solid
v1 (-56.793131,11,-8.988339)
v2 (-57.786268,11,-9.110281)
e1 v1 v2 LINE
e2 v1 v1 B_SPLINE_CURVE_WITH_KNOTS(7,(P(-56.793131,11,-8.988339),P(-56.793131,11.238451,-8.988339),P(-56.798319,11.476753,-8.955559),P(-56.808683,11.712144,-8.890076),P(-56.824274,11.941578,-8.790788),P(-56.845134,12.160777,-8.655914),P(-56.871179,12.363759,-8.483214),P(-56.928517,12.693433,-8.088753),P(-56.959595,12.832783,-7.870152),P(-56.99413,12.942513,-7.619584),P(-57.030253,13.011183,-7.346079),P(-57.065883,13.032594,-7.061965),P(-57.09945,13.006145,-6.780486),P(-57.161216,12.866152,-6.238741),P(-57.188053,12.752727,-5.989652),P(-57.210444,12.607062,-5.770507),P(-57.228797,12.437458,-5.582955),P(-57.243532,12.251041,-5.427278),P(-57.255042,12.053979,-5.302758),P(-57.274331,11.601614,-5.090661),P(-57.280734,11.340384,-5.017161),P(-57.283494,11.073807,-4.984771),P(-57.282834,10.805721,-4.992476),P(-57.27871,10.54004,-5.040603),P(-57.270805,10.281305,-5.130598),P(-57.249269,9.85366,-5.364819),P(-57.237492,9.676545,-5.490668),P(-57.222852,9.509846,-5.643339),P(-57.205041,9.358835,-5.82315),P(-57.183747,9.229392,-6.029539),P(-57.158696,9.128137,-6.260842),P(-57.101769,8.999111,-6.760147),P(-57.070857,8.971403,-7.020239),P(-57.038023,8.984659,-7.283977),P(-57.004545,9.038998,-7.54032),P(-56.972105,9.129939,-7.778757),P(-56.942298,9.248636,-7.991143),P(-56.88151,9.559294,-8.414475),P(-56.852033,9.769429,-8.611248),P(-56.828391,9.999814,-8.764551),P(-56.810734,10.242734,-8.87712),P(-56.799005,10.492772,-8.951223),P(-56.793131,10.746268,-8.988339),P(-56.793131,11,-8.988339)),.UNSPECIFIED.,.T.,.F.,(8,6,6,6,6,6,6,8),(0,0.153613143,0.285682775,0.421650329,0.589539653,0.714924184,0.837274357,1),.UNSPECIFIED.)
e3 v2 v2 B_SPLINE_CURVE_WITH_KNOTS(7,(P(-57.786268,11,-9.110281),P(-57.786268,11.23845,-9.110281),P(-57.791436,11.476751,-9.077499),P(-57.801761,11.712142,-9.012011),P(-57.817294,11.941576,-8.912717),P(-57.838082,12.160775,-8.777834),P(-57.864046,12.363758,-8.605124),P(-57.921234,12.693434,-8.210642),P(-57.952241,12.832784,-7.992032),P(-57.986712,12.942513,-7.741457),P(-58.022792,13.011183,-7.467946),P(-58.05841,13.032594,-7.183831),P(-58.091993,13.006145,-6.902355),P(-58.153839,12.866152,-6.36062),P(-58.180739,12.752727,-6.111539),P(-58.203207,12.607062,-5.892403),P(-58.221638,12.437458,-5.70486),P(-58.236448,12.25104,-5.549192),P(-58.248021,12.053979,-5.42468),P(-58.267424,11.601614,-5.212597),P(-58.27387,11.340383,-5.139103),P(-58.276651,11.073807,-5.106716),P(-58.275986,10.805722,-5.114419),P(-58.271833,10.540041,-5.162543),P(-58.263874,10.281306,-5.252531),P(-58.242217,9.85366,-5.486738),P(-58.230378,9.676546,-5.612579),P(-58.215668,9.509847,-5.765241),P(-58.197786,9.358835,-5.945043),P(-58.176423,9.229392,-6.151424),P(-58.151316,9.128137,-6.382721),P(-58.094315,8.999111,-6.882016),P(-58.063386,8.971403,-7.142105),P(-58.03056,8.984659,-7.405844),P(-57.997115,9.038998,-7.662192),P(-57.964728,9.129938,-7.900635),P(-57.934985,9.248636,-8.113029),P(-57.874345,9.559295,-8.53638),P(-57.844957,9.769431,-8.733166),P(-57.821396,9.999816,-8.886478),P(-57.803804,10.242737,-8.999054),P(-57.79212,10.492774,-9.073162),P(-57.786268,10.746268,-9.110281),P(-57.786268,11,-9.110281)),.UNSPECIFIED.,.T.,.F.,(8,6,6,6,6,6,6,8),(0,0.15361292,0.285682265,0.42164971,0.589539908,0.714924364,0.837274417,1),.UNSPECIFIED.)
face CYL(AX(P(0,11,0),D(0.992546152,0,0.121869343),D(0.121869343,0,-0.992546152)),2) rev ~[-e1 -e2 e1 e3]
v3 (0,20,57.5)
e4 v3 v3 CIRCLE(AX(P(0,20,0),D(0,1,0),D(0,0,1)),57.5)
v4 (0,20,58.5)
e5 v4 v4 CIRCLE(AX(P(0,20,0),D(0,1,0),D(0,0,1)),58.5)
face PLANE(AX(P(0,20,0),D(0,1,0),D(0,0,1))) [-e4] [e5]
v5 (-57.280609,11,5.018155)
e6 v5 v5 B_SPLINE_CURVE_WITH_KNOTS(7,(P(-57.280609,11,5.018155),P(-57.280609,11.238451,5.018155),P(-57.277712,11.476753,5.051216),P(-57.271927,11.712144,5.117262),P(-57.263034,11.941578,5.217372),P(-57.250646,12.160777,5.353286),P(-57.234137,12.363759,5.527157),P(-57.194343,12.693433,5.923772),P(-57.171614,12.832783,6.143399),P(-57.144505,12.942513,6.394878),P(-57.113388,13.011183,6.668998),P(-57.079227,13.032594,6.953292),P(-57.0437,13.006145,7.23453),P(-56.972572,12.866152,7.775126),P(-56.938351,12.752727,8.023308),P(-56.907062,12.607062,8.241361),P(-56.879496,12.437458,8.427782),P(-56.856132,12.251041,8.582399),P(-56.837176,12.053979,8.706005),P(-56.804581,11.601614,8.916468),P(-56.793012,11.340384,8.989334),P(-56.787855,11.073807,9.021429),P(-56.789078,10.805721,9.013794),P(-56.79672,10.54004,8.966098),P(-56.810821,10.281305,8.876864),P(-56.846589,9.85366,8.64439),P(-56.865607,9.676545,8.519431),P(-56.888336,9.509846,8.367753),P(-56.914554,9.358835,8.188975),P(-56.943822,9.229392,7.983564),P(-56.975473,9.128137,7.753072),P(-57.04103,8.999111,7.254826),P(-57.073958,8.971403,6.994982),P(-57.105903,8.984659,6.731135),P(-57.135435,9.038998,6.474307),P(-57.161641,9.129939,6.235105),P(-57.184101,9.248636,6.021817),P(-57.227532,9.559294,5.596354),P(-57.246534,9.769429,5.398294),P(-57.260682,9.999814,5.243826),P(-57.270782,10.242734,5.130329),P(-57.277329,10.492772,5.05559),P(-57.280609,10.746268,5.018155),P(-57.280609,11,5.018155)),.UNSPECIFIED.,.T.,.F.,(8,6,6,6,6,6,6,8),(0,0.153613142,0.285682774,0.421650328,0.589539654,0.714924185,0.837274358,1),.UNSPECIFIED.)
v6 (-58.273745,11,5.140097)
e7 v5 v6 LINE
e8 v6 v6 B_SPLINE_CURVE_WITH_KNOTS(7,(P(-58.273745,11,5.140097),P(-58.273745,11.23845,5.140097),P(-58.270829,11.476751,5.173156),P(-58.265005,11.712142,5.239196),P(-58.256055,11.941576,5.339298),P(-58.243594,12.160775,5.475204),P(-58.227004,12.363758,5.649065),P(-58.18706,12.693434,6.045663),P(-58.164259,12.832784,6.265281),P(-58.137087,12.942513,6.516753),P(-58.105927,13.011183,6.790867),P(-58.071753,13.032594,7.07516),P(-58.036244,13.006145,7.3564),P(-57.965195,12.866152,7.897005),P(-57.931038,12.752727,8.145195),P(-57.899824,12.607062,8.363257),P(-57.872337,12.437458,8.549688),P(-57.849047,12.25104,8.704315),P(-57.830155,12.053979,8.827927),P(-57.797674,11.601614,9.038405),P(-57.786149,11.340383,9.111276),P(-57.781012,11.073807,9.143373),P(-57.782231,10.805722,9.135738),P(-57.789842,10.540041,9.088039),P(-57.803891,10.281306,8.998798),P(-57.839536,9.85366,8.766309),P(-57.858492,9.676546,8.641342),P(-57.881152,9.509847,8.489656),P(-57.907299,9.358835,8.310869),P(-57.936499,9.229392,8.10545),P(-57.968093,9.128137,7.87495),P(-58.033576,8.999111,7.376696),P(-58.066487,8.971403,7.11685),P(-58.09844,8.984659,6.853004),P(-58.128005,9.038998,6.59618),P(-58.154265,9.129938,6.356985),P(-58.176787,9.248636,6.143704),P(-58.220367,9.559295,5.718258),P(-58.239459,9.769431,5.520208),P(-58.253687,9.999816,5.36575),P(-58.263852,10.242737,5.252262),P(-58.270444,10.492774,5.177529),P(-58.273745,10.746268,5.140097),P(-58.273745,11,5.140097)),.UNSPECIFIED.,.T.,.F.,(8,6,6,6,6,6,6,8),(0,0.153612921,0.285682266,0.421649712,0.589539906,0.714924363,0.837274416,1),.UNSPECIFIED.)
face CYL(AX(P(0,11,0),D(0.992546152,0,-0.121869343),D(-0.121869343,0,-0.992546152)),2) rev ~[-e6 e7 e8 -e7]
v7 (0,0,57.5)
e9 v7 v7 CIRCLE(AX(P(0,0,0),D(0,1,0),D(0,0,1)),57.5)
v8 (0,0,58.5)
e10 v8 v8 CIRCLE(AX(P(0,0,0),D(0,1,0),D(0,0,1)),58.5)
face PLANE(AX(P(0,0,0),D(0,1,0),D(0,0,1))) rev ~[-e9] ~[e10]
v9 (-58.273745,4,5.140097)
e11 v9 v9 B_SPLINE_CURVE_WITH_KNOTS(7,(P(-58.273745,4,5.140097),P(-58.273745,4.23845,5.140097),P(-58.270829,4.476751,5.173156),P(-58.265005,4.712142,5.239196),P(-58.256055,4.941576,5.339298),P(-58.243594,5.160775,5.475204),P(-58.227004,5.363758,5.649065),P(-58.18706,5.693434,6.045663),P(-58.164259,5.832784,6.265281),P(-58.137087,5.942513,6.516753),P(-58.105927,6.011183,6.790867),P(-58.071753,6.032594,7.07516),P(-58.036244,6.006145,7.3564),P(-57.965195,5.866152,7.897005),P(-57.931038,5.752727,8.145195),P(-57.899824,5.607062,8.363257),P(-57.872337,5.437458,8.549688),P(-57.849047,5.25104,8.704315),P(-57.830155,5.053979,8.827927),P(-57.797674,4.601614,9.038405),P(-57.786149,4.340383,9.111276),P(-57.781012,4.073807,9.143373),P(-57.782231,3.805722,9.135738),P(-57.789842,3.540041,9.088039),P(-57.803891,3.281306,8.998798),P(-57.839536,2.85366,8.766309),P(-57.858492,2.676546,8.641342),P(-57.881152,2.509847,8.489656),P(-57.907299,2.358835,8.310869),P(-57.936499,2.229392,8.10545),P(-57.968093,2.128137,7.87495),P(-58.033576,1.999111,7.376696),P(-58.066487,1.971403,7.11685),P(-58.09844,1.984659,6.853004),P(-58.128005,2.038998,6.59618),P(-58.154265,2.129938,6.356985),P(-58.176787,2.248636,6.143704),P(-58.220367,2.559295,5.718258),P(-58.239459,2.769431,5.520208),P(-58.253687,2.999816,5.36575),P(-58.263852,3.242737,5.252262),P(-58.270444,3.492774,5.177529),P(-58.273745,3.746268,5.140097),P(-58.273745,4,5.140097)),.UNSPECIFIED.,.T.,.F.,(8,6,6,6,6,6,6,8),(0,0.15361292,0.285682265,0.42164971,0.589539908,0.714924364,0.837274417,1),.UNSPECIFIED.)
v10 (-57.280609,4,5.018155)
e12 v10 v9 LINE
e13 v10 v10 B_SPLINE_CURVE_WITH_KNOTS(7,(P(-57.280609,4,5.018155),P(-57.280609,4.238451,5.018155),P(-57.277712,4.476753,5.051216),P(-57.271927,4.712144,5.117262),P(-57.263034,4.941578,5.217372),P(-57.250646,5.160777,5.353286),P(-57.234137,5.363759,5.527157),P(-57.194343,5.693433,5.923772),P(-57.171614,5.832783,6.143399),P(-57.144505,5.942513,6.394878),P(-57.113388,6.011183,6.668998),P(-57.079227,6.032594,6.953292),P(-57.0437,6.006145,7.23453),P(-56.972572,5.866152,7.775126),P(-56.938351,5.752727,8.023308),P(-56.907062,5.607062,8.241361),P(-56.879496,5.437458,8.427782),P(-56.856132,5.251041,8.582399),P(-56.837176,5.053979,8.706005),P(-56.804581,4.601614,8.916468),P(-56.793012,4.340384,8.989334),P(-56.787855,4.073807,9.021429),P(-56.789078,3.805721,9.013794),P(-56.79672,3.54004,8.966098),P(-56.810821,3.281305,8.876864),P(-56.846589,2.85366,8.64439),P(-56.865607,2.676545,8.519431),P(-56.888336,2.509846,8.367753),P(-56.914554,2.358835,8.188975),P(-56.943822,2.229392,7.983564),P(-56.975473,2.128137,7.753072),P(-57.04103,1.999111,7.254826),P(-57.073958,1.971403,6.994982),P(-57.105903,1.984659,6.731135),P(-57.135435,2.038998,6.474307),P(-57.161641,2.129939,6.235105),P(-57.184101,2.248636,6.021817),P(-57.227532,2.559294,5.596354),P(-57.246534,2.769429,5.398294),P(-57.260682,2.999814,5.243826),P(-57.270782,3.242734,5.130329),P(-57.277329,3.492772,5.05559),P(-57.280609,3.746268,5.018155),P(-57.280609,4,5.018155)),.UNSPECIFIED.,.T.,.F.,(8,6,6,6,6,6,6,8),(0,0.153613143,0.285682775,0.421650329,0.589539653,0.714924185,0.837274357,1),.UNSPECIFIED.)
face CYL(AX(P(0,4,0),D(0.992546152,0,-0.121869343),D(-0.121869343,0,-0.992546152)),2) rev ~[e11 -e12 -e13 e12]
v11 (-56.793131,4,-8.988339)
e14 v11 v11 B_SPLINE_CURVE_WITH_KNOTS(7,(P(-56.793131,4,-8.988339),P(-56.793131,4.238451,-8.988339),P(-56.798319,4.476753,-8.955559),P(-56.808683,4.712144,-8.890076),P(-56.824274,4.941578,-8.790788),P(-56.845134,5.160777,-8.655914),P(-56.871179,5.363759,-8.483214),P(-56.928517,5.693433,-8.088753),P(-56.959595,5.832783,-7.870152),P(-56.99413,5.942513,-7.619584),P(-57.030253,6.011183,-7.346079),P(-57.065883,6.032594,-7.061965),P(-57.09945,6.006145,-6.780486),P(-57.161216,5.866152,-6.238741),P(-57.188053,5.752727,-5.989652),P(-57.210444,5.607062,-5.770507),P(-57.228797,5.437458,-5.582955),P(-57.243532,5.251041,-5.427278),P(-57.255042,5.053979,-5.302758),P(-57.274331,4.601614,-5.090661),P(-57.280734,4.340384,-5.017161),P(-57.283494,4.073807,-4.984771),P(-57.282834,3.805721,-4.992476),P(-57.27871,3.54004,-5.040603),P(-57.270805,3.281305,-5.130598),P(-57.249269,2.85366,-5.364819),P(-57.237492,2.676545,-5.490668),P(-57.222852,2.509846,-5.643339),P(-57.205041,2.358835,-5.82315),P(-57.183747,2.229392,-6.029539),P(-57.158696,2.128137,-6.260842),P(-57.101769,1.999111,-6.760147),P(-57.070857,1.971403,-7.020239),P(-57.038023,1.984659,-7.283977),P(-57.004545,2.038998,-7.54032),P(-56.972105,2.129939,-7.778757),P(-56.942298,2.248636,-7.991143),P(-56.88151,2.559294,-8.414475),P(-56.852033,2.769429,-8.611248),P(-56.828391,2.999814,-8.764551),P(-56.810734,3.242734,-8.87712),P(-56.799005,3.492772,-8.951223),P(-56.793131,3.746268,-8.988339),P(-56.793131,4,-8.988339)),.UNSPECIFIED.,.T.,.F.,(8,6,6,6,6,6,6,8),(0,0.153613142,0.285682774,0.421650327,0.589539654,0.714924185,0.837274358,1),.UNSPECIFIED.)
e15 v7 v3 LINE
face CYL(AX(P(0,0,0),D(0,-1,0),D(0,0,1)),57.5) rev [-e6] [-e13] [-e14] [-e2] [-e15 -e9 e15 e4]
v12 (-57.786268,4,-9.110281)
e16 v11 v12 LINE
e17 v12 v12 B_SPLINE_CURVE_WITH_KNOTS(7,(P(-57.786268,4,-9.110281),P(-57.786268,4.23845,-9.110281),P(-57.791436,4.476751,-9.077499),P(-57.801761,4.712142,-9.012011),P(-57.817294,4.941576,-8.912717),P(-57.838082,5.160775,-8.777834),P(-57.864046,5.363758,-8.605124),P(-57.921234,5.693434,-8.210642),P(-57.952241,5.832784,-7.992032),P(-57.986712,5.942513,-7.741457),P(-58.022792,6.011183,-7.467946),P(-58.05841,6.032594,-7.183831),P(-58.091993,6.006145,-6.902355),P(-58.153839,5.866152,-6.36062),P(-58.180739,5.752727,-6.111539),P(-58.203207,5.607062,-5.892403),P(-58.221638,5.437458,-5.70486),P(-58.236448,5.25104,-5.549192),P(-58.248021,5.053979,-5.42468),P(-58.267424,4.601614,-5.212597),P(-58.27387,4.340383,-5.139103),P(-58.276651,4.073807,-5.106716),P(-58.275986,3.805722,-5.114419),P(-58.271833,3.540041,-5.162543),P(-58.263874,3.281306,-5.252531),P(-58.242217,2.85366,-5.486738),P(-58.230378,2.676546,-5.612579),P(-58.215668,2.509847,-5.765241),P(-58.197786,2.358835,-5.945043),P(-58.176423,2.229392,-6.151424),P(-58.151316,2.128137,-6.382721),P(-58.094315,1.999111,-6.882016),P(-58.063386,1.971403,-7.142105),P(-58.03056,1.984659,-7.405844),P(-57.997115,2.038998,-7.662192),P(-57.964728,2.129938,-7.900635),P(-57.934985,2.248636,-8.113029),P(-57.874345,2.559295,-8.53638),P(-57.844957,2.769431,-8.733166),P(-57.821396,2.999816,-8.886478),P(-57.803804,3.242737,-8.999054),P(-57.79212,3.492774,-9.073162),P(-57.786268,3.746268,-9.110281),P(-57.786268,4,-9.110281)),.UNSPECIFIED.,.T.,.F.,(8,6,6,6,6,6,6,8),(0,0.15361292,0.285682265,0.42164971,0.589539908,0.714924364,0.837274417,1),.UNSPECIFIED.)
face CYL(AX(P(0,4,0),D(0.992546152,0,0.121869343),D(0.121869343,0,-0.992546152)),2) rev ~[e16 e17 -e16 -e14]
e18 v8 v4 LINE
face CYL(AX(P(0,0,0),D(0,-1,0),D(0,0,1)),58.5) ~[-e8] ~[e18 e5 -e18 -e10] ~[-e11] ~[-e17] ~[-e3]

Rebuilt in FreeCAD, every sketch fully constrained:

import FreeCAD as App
import Part
import Sketcher
from FreeCAD import Vector

doc = App.newDocument("Part")
params = doc.addObject("Spreadsheet::Sheet", "Params")
for row, (alias, value) in enumerate([
    ("sketch1_diameter", "117 mm"),
    ("sketch1_diameter2", "115 mm"),
    ("pad1_length", "20 mm"),
    ("sketch2_diameter", "4 mm"),
    ("pocket1_length", "71 mm"),
    ("sketch3_diameter", "4 mm"),
    ("pocket2_length", "71 mm"),
], start=1):
    params.set(f"A{row}", alias)
    params.set(f"B{row}", "=" + value)
    params.setAlias(f"B{row}", alias)

body = doc.addObject("PartDesign::Body", "Body")

# Sketch on XZ plane
sketch1 = doc.addObject("Sketcher::SketchObject", "Sketch")
body.addObject(sketch1)
sketch1.AttachmentSupport = (doc.XZ_Plane, [""])
sketch1.MapMode = "FlatFace"
sketch1.addGeometry([
    Part.Circle(Vector(0, 0, 0), Vector(0, 0, 1), 58.5),
    Part.Circle(Vector(0, 0, 0), Vector(0, 0, 1), 57.5),
], False)
sketch1.addConstraint([
    Sketcher.Constraint("Coincident", 0, 3, -1, 1),
    Sketcher.Constraint("Coincident", 1, 3, -1, 1),
    Sketcher.Constraint("Diameter", 0, 117.0),
    Sketcher.Constraint("Diameter", 1, 115.0),
])
sketch1.setExpression("Constraints[2]", "Params.sketch1_diameter")
sketch1.setExpression("Constraints[3]", "Params.sketch1_diameter2")
pad1 = doc.addObject("PartDesign::Pad", "Pad")
body.addObject(pad1)
pad1.Profile = sketch1
pad1.setExpression("Length", "Params.pad1_length")
pad1.Reversed = True

# Sketch on an angled plane
sketch2 = doc.addObject("Sketcher::SketchObject", "Sketch001")
body.addObject(sketch2)
sketch2.Placement = App.Placement(Vector(0, 0, 0), App.Rotation(Vector(-0.121869343, 0, -0.992546152), Vector(0, 1.000000001, 0), Vector(0.992546152, 0, -0.121869343), "ZXY"))
sketch2.addGeometry([
    Part.Circle(Vector(0, 11, 0), Vector(0, 0, 1), 2),
    Part.Circle(Vector(0, 4, 0), Vector(0, 0, 1), 2),
], False)
sketch2.addConstraint([
    Sketcher.Constraint("Equal", 0, 1),
    Sketcher.Constraint("PointOnObject", 0, 3, -2),
    Sketcher.Constraint("PointOnObject", 1, 3, -2),
    Sketcher.Constraint("Diameter", 0, 4.0),
    Sketcher.Constraint("DistanceY", -1, 1, 0, 3, 11.0),
    Sketcher.Constraint("DistanceY", -1, 1, 1, 3, 4.0),
])
sketch2.setExpression("Constraints[3]", "Params.sketch2_diameter")
pocket1 = doc.addObject("PartDesign::Pocket", "Pocket")
body.addObject(pocket1)
pocket1.Profile = sketch2
pocket1.setExpression("Length", "Params.pocket1_length")

# Sketch on an angled plane
sketch3 = doc.addObject("Sketcher::SketchObject", "Sketch002")
body.addObject(sketch3)
sketch3.Placement = App.Placement(Vector(0, 0, 0), App.Rotation(Vector(0.121869343, 0, -0.992546152), Vector(0, 1.000000001, 0), Vector(0.992546152, 0, 0.121869343), "ZXY"))
sketch3.addGeometry([
    Part.Circle(Vector(0, 11, 0), Vector(0, 0, 1), 2),
    Part.Circle(Vector(0, 4, 0), Vector(0, 0, 1), 2),
], False)
sketch3.addConstraint([
    Sketcher.Constraint("Equal", 0, 1),
    Sketcher.Constraint("PointOnObject", 0, 3, -2),
    Sketcher.Constraint("PointOnObject", 1, 3, -2),
    Sketcher.Constraint("Diameter", 0, 4.0),
    Sketcher.Constraint("DistanceY", -1, 1, 0, 3, 11.0),
    Sketcher.Constraint("DistanceY", -1, 1, 1, 3, 4.0),
])
sketch3.setExpression("Constraints[3]", "Params.sketch3_diameter")
pocket2 = doc.addObject("PartDesign::Pocket", "Pocket001")
body.addObject(pocket2)
pocket2.Profile = sketch3
pocket2.setExpression("Length", "Params.pocket2_length")

doc.recompute()
